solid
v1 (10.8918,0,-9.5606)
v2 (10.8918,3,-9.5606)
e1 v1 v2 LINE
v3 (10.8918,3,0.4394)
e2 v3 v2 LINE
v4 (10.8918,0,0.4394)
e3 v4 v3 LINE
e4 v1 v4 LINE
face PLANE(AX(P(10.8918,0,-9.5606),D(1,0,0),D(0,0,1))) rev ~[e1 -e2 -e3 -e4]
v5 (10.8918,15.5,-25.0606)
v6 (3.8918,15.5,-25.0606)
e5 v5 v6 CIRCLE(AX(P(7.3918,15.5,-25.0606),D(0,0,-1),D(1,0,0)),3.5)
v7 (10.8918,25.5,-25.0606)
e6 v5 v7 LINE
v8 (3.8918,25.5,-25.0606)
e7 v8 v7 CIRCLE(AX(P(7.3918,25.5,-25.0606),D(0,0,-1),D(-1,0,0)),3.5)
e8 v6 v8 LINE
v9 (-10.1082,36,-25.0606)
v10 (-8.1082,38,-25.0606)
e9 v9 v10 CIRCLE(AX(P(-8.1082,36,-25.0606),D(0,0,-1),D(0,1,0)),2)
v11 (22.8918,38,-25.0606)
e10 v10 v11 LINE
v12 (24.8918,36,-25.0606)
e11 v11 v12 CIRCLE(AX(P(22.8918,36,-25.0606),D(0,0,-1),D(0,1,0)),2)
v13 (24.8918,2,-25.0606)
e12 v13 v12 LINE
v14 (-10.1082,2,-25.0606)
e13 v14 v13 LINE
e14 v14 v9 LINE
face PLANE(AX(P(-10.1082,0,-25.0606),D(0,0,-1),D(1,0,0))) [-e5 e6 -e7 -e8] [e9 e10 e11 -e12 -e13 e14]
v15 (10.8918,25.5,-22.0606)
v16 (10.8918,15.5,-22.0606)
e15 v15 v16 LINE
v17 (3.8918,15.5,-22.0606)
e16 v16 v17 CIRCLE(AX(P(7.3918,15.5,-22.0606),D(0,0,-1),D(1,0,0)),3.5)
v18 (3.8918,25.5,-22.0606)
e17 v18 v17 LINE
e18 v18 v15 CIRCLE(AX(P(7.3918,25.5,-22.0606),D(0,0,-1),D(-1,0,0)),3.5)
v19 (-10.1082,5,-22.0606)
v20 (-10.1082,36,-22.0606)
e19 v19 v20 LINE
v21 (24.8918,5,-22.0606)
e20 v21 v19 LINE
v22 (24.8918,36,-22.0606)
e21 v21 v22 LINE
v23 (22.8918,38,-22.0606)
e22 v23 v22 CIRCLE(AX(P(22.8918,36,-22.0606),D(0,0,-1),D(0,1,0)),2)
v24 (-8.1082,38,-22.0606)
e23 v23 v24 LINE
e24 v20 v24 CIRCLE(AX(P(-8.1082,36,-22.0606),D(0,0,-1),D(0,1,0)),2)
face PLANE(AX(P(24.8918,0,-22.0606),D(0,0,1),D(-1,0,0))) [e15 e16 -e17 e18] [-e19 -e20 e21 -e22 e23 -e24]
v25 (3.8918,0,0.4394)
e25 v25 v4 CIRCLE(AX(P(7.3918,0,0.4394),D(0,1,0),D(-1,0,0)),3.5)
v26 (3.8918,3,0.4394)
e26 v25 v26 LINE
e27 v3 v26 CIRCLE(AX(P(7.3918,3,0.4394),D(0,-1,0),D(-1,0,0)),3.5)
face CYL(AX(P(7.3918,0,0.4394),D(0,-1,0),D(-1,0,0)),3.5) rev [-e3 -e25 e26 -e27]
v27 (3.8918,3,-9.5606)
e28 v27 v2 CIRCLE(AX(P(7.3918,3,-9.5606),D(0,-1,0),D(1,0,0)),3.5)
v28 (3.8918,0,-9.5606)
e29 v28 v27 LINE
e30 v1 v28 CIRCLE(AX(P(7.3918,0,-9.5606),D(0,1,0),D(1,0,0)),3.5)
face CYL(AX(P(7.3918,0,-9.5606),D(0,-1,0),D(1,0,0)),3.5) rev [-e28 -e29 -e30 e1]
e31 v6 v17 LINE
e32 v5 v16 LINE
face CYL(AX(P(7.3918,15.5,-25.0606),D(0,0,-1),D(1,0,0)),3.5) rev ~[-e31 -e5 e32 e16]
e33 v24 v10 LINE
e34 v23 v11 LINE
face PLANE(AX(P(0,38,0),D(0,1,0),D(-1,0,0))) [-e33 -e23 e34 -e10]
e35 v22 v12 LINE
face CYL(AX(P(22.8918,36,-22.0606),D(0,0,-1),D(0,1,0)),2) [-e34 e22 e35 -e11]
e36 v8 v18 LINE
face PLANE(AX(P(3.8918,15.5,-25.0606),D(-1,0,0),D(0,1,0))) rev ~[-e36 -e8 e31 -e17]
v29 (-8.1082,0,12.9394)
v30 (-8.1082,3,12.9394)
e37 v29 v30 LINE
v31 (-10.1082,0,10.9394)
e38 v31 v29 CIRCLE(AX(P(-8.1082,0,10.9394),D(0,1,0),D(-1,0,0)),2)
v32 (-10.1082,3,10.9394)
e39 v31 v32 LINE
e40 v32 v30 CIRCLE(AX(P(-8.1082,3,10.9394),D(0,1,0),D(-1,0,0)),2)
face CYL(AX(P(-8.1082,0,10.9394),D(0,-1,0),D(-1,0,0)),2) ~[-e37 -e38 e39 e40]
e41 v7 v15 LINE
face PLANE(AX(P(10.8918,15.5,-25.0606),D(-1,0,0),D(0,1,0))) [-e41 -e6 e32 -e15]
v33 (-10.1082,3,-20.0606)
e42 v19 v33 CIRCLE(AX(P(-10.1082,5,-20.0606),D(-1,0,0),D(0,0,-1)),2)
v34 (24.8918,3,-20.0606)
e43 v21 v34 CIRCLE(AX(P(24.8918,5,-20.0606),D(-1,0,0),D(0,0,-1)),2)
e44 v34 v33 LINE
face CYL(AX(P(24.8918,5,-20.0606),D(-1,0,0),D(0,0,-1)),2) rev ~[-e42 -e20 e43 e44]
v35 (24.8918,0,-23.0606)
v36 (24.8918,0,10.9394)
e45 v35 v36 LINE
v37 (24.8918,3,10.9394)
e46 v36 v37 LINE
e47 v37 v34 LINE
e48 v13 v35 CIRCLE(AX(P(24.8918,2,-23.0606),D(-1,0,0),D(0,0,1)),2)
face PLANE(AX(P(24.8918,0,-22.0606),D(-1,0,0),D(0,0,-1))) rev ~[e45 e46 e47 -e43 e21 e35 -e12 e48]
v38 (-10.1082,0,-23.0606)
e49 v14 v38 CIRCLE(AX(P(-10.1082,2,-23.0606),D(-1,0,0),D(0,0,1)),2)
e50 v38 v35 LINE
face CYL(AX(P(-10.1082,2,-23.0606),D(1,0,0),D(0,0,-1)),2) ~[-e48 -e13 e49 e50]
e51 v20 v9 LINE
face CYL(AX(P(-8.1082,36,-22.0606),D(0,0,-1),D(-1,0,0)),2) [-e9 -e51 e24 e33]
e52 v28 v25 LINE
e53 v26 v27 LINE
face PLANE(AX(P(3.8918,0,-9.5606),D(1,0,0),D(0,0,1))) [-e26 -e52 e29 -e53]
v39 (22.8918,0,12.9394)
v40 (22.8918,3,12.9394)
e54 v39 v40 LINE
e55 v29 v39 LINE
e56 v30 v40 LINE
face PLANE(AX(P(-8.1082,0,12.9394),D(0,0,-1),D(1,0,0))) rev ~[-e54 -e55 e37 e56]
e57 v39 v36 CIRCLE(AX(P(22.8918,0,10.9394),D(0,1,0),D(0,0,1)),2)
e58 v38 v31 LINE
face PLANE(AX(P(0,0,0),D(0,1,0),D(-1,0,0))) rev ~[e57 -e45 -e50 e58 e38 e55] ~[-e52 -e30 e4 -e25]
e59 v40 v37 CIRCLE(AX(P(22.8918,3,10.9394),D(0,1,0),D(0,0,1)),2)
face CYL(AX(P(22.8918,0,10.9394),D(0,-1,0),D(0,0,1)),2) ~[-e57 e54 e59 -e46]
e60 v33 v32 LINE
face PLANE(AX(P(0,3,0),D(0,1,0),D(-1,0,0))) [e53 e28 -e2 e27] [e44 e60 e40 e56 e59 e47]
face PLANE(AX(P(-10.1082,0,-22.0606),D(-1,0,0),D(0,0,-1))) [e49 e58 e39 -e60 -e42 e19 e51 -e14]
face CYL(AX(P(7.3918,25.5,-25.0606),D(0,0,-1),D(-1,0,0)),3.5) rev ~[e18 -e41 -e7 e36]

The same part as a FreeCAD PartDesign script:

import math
import FreeCAD as App
import Part
import Sketcher


def edges_at(feature, points):
    """Names of the edges that pass closest to the given points."""
    edges = feature.Shape.Edges
    near = lambda p: min(range(len(edges)), key=lambda i: edges[i].distToShape(Part.Vertex(*p))[0])
    return sorted({f"Edge{near(p) + 1}" for p in points})


def add_polygon(sketch, points):
    """Adds a closed chain of lines whose ends are joined by coincident constraints."""
    first, n = sketch.GeometryCount, len(points)
    for a, b in zip(points, points[1:] + points[:1]):
        sketch.addGeometry(Part.LineSegment(App.Vector(*a, 0), App.Vector(*b, 0)), False)
    for i in range(n):
        sketch.addConstraint(Sketcher.Constraint("Coincident", first + i, 2, first + (i + 1) % n, 1))

doc = App.newDocument("Part")
params = doc.addObject("Spreadsheet::Sheet", "Params")
for row, (alias, value) in enumerate([
    ("sketch1_radius", "2 mm"),
    ("sketch1_width", "35 mm"),
    ("pad1_length", "3 mm"),
    ("sketch2_width", "35 mm"),
    ("sketch2_height", "3 mm"),
    ("pad2_length", "38 mm"),
    ("fillet_radius", "2 mm"),
    ("sketch3_radius", "3.5 mm"),
    ("sketch3_height", "10 mm"),
    ("pocket1_length", "38 mm"),
    ("sketch4_radius", "3.5 mm"),
    ("sketch4_height", "10 mm"),
    ("pocket2_length", "38 mm"),
], start=1):
    params.set(f"A{row}", alias)
    params.set(f"B{row}", "=" + value)
    params.setAlias(f"B{row}", alias)

body = doc.addObject("PartDesign::Body", "Body")

# Sketch on XZ plane
sketch1 = doc.addObject("Sketcher::SketchObject", "Sketch")
body.addObject(sketch1)
sketch1.AttachmentSupport = (doc.XZ_Plane, [""])
sketch1.MapMode = "FlatFace"
sketch1.addGeometry(Part.ArcOfCircle(Part.Circle(App.Vector(-8.1, 10.9, 0), App.Vector(0, 0, 1), 2), math.radians(90), math.radians(180)), False)
sketch1.addGeometry(Part.LineSegment(App.Vector(-8.1, 12.9, 0), App.Vector(22.9, 12.9, 0)), False)
sketch1.addGeometry(Part.ArcOfCircle(Part.Circle(App.Vector(22.9, 10.9, 0), App.Vector(0, 0, 1), 2), math.radians(0), math.radians(90)), False)
sketch1.addGeometry(Part.LineSegment(App.Vector(24.9, 10.9, 0), App.Vector(24.9, -22.1, 0)), False)
sketch1.addGeometry(Part.LineSegment(App.Vector(24.9, -22.1, 0), App.Vector(-10.1, -22.1, 0)), False)
sketch1.addGeometry(Part.LineSegment(App.Vector(-10.1, -22.1, 0), App.Vector(-10.1, 10.9, 0)), False)
sketch1.addConstraint(Sketcher.Constraint("Tangent", 0, 1, 1, 1))
sketch1.addConstraint(Sketcher.Constraint("Tangent", 1, 2, 2, 2))
sketch1.addConstraint(Sketcher.Constraint("Tangent", 2, 1, 3, 1))
sketch1.addConstraint(Sketcher.Constraint("Coincident", 3, 2, 4, 1))
sketch1.addConstraint(Sketcher.Constraint("Coincident", 4, 2, 5, 1))
sketch1.addConstraint(Sketcher.Constraint("Tangent", 5, 2, 0, 2))
sketch1.addConstraint(Sketcher.Constraint("Horizontal", 1))
sketch1.addConstraint(Sketcher.Constraint("Vertical", 3))
sketch1.addConstraint(Sketcher.Constraint("Horizontal", 4))
sketch1.addConstraint(Sketcher.Constraint("Vertical", 5))
sketch1.addConstraint(Sketcher.Constraint("Equal", 0, 2))
sketch1.addConstraint(Sketcher.Constraint("Radius", 0, 2.0))
sketch1.addConstraint(Sketcher.Constraint("DistanceX", 4, 2, 4, 1, 35.0))
sketch1.addConstraint(Sketcher.Constraint("DistanceY", 3, 2, 1, 2, 35.0))
sketch1.addConstraint(Sketcher.Constraint("DistanceX", 0, 3, -1, 1, 8.1082))
sketch1.addConstraint(Sketcher.Constraint("DistanceY", -1, 1, 0, 3, 10.9394))
sketch1.setExpression("Constraints[11]", "Params.sketch1_radius")
sketch1.setExpression("Constraints[12]", "Params.sketch1_width")
pad1 = doc.addObject("PartDesign::Pad", "Pad")
body.addObject(pad1)
pad1.Profile = sketch1
pad1.setExpression("Length", "Params.pad1_length")
pad1.Reversed = True

# Sketch on XZ plane
sketch2 = doc.addObject("Sketcher::SketchObject", "Sketch001")
body.addObject(sketch2)
sketch2.AttachmentSupport = (doc.XZ_Plane, [""])
sketch2.MapMode = "FlatFace"
add_polygon(sketch2, [(-10.1, -25.1), (-10.1, -22.1), (24.9, -22.1), (24.9, -25.1)])  # lines 0-3
sketch2.addConstraint(Sketcher.Constraint("Vertical", 0))
sketch2.addConstraint(Sketcher.Constraint("Horizontal", 1))
sketch2.addConstraint(Sketcher.Constraint("Vertical", 2))
sketch2.addConstraint(Sketcher.Constraint("Horizontal", 3))
sketch2.addConstraint(Sketcher.Constraint("DistanceX", 1, 1, 1, 2, 35.0))
sketch2.addConstraint(Sketcher.Constraint("DistanceY", 0, 1, 0, 2, 3.0))
sketch2.addConstraint(Sketcher.Constraint("DistanceX", 0, 2, -1, 1, 10.1082))
sketch2.addConstraint(Sketcher.Constraint("DistanceY", 0, 2, -1, 1, 22.0606))
sketch2.setExpression("Constraints[8]", "Params.sketch2_width")
sketch2.setExpression("Constraints[9]", "Params.sketch2_height")
pad2 = doc.addObject("PartDesign::Pad", "Pad001")
body.addObject(pad2)
pad2.Profile = sketch2
pad2.setExpression("Length", "Params.pad2_length")
pad2.Reversed = True
doc.recompute()

fillet = doc.addObject("PartDesign::Fillet", "Fillet")
body.addObject(fillet)
fillet.Base = (pad2, edges_at(pad2, [
    (24.892, 38, -23.561),
    (-10.108, 38, -23.561),
    (7.392, 3, -22.061),
    (7.392, 0, -25.061),
]))
fillet.setExpression("Radius", "Params.fillet_radius")

# Sketch on XY plane
sketch3 = doc.addObject("Sketcher::SketchObject", "Sketch002")
body.addObject(sketch3)
sketch3.AttachmentSupport = (doc.XY_Plane, [""])
sketch3.MapMode = "FlatFace"
sketch3.AttachmentOffset = App.Placement(App.Vector(0, 0, -25.0606), App.Rotation())
sketch3.addGeometry(Part.LineSegment(App.Vector(10.9, 25.5, 0), App.Vector(10.9, 15.5, 0)), False)
sketch3.addGeometry(Part.ArcOfCircle(Part.Circle(App.Vector(7.4, 15.5, 0), App.Vector(0, 0, 1), 3.5), math.radians(180), math.radians(360)), False)
sketch3.addGeometry(Part.LineSegment(App.Vector(3.9, 15.5, 0), App.Vector(3.9, 25.5, 0)), False)
sketch3.addGeometry(Part.ArcOfCircle(Part.Circle(App.Vector(7.4, 25.5, 0), App.Vector(0, 0, 1), 3.5), math.radians(0), math.radians(180)), False)
sketch3.addConstraint(Sketcher.Constraint("Tangent", 0, 2, 1, 2))
sketch3.addConstraint(Sketcher.Constraint("Tangent", 1, 1, 2, 1))
sketch3.addConstraint(Sketcher.Constraint("Tangent", 2, 2, 3, 2))
sketch3.addConstraint(Sketcher.Constraint("Tangent", 3, 1, 0, 1))
sketch3.addConstraint(Sketcher.Constraint("Vertical", 0))
sketch3.addConstraint(Sketcher.Constraint("Vertical", 2))
sketch3.addConstraint(Sketcher.Constraint("Radius", 1, 3.5))
sketch3.addConstraint(Sketcher.Constraint("DistanceY", 0, 2, 0, 1, 10.0))
sketch3.addConstraint(Sketcher.Constraint("DistanceY", -1, 1, 1, 3, 15.5))
sketch3.addConstraint(Sketcher.Constraint("DistanceX", -1, 1, 1, 3, 7.3918))
sketch3.setExpression("Constraints[6]", "Params.sketch3_radius")
sketch3.setExpression("Constraints[7]", "Params.sketch3_height")
pocket1 = doc.addObject("PartDesign::Pocket", "Pocket")
body.addObject(pocket1)
pocket1.Profile = sketch3
pocket1.setExpression("Length", "Params.pocket1_length")
pocket1.Reversed = True

# Sketch on XZ plane
sketch4 = doc.addObject("Sketcher::SketchObject", "Sketch003")
body.addObject(sketch4)
sketch4.AttachmentSupport = (doc.XZ_Plane, [""])
sketch4.MapMode = "FlatFace"
sketch4.addGeometry(Part.LineSegment(App.Vector(10.9, 0.4, 0), App.Vector(10.9, -9.6, 0)), False)
sketch4.addGeometry(Part.ArcOfCircle(Part.Circle(App.Vector(7.4, -9.6, 0), App.Vector(0, 0, 1), 3.5), math.radians(180), math.radians(360)), False)
sketch4.addGeometry(Part.LineSegment(App.Vector(3.9, -9.6, 0), App.Vector(3.9, 0.4, 0)), False)
sketch4.addGeometry(Part.ArcOfCircle(Part.Circle(App.Vector(7.4, 0.4, 0), App.Vector(0, 0, 1), 3.5), math.radians(0), math.radians(180)), False)
sketch4.addConstraint(Sketcher.Constraint("Tangent", 0, 2, 1, 2))
sketch4.addConstraint(Sketcher.Constraint("Tangent", 1, 1, 2, 1))
sketch4.addConstraint(Sketcher.Constraint("Tangent", 2, 2, 3, 2))
sketch4.addConstraint(Sketcher.Constraint("Tangent", 3, 1, 0, 1))
sketch4.addConstraint(Sketcher.Constraint("Vertical", 0))
sketch4.addConstraint(Sketcher.Constraint("Vertical", 2))
sketch4.addConstraint(Sketcher.Constraint("Radius", 1, 3.5))
sketch4.addConstraint(Sketcher.Constraint("DistanceY", 0, 2, 0, 1, 10.0))
sketch4.addConstraint(Sketcher.Constraint("DistanceX", -1, 1, 1, 3, 7.3918))
sketch4.addConstraint(Sketcher.Constraint("DistanceY", 1, 3, -1, 1, 9.5606))
sketch4.setExpression("Constraints[6]", "Params.sketch4_radius")
sketch4.setExpression("Constraints[7]", "Params.sketch4_height")
pocket2 = doc.addObject("PartDesign::Pocket", "Pocket001")
body.addObject(pocket2)
pocket2.Profile = sketch4
pocket2.setExpression("Length", "Params.pocket2_length")

doc.recompute()
